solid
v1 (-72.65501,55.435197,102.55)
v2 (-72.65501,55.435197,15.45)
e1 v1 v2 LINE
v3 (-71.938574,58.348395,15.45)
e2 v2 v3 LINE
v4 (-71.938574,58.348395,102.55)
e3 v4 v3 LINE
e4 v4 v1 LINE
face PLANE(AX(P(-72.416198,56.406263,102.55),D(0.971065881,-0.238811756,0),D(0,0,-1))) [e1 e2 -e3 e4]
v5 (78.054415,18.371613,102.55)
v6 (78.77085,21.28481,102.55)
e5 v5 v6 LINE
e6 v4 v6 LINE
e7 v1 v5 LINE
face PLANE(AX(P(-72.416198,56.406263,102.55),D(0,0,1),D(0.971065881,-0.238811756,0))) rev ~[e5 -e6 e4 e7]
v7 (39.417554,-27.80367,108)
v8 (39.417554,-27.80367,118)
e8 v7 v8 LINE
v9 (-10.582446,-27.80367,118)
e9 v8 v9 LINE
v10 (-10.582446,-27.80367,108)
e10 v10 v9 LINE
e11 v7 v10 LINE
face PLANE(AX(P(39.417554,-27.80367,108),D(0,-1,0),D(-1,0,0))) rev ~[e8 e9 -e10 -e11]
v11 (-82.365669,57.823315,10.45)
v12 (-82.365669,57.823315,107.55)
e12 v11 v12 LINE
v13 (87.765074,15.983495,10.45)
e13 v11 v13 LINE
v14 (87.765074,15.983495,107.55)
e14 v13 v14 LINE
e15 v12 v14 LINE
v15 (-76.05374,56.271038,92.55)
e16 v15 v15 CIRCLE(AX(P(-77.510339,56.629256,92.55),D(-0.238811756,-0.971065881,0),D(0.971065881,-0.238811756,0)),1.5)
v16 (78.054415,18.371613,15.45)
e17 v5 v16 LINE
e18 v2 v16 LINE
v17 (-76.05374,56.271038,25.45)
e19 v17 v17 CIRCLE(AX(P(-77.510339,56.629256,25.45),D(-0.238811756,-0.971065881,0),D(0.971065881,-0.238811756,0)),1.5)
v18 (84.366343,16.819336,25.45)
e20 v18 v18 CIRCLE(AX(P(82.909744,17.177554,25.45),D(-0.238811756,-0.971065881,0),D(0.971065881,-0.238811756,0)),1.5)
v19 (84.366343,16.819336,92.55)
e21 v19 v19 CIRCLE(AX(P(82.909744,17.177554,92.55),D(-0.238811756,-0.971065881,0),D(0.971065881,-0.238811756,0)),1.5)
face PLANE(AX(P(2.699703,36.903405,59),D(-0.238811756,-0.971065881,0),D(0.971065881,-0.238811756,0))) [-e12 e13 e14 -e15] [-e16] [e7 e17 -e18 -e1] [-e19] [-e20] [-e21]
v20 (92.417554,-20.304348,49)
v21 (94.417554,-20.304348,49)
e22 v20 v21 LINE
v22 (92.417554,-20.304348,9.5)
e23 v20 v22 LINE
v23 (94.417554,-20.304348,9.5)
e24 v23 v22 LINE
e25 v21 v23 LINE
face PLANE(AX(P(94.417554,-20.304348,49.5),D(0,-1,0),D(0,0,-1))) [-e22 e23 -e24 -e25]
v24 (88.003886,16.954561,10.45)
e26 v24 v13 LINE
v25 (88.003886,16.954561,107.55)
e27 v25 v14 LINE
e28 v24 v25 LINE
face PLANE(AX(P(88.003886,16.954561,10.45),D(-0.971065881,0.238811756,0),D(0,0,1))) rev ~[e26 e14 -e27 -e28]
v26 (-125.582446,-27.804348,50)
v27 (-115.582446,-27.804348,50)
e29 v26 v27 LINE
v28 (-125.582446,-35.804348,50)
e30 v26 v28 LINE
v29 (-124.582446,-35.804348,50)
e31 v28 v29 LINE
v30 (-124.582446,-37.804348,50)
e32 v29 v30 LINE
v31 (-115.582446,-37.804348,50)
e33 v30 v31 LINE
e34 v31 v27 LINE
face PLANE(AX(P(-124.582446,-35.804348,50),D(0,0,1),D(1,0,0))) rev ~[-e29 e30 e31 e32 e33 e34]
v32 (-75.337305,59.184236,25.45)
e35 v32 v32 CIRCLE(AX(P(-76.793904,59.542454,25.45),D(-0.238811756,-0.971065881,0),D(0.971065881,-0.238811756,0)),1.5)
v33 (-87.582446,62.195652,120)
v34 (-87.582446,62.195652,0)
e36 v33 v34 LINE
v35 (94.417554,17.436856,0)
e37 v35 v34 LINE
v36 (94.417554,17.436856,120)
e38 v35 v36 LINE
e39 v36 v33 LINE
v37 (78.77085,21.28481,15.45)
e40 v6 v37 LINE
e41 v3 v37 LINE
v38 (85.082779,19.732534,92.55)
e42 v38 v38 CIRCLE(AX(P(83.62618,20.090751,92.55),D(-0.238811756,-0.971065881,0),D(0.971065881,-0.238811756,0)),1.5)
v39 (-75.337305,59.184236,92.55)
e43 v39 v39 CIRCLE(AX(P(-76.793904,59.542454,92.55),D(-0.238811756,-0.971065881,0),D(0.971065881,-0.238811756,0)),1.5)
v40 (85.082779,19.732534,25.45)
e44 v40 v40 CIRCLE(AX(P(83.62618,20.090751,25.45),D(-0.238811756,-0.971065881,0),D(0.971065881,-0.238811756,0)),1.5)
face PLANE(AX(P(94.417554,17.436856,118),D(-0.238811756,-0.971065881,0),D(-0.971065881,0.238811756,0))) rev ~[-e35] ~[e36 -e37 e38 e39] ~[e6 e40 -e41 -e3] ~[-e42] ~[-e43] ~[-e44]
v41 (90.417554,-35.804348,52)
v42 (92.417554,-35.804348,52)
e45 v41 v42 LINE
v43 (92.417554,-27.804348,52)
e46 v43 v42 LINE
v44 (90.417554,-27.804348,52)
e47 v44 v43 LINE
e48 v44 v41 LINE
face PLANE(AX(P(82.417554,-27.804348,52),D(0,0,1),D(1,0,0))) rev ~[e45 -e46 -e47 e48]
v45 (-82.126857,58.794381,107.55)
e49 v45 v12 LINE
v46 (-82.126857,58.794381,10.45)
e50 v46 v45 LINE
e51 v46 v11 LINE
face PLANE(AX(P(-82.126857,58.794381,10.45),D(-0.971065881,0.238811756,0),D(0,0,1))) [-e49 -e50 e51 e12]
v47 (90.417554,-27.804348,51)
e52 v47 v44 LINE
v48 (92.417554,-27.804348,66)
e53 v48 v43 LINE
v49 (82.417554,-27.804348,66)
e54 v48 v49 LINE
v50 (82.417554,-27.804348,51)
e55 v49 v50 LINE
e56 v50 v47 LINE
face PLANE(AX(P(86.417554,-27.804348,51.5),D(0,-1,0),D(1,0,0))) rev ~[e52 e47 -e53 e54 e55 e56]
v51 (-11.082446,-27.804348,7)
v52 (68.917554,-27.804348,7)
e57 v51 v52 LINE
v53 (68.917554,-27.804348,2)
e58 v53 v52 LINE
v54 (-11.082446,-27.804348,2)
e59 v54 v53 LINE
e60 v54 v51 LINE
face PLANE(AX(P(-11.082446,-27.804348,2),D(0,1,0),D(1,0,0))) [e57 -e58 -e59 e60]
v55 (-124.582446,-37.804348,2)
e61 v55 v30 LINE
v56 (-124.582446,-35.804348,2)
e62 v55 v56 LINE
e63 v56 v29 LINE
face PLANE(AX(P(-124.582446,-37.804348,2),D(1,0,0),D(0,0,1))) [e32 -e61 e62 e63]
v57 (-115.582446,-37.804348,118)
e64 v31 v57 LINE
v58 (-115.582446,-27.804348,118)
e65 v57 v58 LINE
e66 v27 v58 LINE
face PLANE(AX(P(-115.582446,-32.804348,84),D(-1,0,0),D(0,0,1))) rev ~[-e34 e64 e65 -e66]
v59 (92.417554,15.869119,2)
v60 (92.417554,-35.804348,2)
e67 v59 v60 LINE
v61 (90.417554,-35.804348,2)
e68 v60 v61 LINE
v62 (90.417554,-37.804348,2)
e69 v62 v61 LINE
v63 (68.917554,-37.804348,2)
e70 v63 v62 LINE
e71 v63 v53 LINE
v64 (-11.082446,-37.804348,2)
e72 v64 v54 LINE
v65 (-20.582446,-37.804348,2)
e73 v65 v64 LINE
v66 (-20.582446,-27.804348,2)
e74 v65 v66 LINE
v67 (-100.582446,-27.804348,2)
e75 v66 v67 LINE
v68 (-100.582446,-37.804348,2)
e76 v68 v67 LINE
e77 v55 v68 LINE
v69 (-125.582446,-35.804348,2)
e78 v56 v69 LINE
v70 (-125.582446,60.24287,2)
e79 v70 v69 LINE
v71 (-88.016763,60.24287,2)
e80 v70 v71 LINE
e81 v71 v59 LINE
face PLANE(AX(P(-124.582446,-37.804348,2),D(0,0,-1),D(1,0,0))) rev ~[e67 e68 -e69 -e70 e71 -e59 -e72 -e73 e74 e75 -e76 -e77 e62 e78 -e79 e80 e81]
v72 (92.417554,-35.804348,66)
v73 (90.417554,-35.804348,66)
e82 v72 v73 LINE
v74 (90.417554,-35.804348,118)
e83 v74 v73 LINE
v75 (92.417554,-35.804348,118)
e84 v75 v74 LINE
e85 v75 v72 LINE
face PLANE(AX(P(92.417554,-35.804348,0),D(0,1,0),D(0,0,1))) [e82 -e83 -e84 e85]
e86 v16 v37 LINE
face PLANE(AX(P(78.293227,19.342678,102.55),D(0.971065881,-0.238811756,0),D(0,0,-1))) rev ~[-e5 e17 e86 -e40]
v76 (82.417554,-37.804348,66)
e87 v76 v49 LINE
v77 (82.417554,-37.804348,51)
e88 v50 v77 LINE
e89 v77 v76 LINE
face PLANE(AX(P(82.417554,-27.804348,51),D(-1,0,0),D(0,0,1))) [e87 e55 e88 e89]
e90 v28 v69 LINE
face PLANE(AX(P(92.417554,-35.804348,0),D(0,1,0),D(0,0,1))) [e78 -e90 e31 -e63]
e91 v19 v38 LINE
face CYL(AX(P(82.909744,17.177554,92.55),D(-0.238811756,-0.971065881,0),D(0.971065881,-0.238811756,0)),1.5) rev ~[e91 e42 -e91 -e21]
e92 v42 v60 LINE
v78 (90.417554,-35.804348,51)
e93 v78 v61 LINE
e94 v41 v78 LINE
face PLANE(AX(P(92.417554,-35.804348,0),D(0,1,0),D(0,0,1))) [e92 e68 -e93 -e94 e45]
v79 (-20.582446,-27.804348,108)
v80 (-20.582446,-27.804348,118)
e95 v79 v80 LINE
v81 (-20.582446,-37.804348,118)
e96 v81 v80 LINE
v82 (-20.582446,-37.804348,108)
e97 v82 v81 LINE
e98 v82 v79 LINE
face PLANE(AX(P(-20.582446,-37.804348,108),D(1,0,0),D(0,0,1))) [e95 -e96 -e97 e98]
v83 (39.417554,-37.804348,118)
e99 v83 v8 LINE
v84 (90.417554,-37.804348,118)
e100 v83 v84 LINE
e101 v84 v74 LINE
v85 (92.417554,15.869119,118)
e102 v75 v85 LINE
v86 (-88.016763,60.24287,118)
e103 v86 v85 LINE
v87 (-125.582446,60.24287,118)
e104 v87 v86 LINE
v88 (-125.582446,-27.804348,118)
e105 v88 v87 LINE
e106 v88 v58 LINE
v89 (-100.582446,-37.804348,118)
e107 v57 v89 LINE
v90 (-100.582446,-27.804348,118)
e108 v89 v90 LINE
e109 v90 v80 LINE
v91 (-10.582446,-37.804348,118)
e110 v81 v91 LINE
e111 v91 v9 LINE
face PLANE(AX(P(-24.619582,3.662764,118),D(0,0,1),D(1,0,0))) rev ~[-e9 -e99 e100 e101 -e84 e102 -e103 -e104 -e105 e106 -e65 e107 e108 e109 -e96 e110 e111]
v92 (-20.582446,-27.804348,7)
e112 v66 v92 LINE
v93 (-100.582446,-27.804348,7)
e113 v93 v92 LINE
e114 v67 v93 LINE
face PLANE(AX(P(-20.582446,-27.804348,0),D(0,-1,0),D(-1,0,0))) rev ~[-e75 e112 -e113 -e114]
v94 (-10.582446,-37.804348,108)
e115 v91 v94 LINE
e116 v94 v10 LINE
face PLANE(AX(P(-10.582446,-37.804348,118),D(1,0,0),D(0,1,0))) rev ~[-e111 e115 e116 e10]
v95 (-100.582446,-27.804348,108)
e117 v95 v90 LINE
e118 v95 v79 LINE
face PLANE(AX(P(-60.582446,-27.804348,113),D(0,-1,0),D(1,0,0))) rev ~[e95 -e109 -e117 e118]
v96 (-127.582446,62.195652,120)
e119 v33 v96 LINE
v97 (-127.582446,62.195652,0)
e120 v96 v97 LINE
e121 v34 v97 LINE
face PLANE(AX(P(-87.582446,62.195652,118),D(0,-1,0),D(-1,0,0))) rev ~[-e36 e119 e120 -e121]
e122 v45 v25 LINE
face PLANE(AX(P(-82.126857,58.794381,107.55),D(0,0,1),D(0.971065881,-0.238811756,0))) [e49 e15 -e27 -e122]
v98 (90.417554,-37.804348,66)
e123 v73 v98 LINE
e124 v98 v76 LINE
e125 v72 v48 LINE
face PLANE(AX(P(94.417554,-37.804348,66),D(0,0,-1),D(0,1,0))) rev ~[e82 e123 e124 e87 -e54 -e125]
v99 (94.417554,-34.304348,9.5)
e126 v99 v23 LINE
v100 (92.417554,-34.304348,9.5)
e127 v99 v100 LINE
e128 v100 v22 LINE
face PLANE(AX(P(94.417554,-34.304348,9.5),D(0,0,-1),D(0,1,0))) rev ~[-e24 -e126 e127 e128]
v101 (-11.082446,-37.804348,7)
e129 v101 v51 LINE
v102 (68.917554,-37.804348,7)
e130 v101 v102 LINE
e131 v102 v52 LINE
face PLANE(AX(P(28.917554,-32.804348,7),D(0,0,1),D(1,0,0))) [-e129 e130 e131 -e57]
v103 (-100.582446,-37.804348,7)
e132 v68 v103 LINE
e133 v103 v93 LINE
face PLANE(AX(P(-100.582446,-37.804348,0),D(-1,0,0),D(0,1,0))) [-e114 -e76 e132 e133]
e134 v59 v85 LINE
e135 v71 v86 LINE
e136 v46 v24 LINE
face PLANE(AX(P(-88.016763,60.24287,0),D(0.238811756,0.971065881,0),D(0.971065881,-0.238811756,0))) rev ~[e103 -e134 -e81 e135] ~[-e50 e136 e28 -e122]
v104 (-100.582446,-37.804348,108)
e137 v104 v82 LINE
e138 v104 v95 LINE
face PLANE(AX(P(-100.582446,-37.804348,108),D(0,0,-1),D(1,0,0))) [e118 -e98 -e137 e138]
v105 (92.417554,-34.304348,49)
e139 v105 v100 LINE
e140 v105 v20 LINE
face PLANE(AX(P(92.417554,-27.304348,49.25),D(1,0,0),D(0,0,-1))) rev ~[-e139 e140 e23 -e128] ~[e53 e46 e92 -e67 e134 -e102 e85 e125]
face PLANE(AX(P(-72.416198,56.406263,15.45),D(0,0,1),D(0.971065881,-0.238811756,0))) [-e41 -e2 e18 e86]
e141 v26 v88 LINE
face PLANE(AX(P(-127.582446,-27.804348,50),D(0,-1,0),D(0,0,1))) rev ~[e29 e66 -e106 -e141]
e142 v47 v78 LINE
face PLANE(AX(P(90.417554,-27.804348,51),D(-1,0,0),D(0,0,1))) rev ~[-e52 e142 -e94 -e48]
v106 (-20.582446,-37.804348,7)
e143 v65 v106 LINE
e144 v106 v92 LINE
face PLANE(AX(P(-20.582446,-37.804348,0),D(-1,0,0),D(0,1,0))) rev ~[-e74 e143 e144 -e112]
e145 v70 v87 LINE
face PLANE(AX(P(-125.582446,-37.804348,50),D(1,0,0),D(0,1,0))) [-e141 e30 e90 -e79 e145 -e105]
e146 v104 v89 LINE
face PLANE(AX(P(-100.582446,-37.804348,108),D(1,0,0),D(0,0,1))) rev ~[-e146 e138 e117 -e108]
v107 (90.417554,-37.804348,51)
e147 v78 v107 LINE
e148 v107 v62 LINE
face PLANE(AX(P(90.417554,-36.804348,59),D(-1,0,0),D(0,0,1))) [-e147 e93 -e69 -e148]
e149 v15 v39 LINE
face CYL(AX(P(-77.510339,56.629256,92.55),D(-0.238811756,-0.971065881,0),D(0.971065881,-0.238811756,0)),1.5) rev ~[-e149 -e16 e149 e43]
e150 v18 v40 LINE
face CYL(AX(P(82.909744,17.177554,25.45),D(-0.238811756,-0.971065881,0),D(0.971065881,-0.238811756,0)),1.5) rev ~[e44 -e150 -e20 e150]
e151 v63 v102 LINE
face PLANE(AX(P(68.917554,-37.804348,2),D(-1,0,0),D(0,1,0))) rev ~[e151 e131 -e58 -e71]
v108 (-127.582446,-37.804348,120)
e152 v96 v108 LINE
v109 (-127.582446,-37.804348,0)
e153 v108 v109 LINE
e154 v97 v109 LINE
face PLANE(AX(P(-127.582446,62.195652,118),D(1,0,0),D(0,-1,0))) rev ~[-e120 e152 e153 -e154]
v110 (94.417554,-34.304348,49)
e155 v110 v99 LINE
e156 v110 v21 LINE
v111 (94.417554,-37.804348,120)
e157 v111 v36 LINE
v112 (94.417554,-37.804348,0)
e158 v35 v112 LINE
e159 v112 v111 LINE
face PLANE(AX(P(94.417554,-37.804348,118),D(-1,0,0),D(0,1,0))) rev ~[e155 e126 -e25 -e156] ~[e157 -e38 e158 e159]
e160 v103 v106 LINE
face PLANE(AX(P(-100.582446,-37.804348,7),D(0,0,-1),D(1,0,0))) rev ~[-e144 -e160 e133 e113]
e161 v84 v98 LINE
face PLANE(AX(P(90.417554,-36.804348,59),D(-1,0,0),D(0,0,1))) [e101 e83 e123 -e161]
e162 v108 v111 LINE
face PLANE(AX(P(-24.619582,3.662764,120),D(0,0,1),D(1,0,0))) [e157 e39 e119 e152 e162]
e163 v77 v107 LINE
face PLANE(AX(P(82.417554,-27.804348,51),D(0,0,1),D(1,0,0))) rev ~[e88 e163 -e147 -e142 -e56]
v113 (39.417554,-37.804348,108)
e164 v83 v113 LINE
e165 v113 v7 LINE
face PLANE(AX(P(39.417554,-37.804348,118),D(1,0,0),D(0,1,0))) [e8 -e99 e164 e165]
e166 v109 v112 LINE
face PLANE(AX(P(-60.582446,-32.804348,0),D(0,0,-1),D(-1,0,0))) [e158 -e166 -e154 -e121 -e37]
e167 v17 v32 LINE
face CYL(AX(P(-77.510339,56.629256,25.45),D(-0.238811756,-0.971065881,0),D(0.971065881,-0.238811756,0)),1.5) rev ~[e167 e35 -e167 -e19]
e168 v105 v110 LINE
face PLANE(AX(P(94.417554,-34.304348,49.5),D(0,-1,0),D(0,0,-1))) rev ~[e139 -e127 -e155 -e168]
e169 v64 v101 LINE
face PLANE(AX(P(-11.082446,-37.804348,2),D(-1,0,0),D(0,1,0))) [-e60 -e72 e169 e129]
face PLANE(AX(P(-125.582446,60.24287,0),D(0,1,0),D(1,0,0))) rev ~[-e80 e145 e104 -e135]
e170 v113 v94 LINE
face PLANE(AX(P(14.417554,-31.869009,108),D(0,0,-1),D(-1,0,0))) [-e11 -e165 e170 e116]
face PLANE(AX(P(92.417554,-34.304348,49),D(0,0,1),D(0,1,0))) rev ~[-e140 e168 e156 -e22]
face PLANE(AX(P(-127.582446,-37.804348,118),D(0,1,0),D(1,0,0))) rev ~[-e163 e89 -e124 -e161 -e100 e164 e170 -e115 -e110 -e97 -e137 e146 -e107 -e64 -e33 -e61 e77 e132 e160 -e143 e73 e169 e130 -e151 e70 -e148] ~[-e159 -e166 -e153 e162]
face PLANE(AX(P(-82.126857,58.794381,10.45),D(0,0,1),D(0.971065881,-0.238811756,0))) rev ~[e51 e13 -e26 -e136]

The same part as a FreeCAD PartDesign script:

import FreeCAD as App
import Part
import Sketcher

V = App.Vector
Q = App.Units.Quantity


def add_polygon(sketch, points):
    """Adds a closed chain of lines whose ends are joined by coincident constraints."""
    first, n = sketch.GeometryCount, len(points)
    for a, b in zip(points, points[1:] + points[:1]):
        sketch.addGeometry(Part.LineSegment(App.Vector(*a, 0), App.Vector(*b, 0)), False)
    for i in range(n):
        sketch.addConstraint(Sketcher.Constraint("Coincident", first + i, 2, first + (i + 1) % n, 1))

doc = App.newDocument("Part")
body = doc.addObject("PartDesign::Body", "Body")

# Sketch on XY plane
sketch1 = body.newObject("Sketcher::SketchObject", "Sketch")
sketch1.AttachmentSupport = (doc.getObject("XY_Plane"), [""])
sketch1.MapMode = "FlatFace"
add_polygon(sketch1, [(94.417554, -32.563144), (94.417554, 17.436856), (-87.582446, 62.195652), (-127.582446, 62.195652), (-127.582446, -37.804348), (-125.582446, -37.75713), (-125.582446, 60.24287), (-88.016763, 60.24287), (92.417554, 15.869119), (92.417554, -32.610362)])  # lines 0-9
sketch1.addConstraint([
    Sketcher.Constraint("Vertical", 0),
    Sketcher.Constraint("Horizontal", 2),
    Sketcher.Constraint("Vertical", 3),
    Sketcher.Constraint("Vertical", 5),
    Sketcher.Constraint("Horizontal", 6),
    Sketcher.Constraint("Vertical", 8),
    Sketcher.Constraint("Parallel", 1, 7),
    Sketcher.Constraint("Parallel", 4, 9),
    Sketcher.Constraint("Equal", 4, 9),
    Sketcher.Constraint("DistanceX", 2, 2, 2, 1, Q("40 mm")),
    Sketcher.Constraint("DistanceY", 0, 1, 0, 2, Q("50 mm")),
    Sketcher.Constraint("DistanceY", 3, 2, 3, 1, Q("100 mm")),
    Sketcher.Constraint("DistanceY", 5, 1, 5, 2, Q("98 mm")),
    Sketcher.Constraint("DistanceX", 1, 2, 0, 2, Q("182 mm")),
    Sketcher.Constraint("DistanceX", 3, 2, 4, 2, Q("2 mm")),
    Sketcher.Constraint("DistanceY", 8, 2, 8, 1, Q("48.47948 mm")),
    Sketcher.Constraint("DistanceX", 6, 1, 6, 2, Q("37.565683 mm")),
    Sketcher.Constraint("DistanceY", 4, 2, -1, 1, Q("37.75713 mm")),
    Sketcher.Constraint("DistanceY", -1, 1, 7, 2, Q("15.869119 mm")),
    Sketcher.Constraint("DistanceX", -1, 1, 0, 2, Q("94.417554 mm")),
])
pad1 = body.newObject("PartDesign::Pad", "Pad")
pad1.Profile = sketch1
pad1.Length = 118

# Sketch on YZ plane
sketch2 = body.newObject("Sketcher::SketchObject", "Sketch001")
sketch2.AttachmentSupport = (doc.getObject("YZ_Plane"), [""])
sketch2.MapMode = "FlatFace"
sketch2.AttachmentOffset = App.Placement(V(0, 0, -127.582446), App.Rotation())
add_polygon(sketch2, [(-27.804348, 50), (-37.804348, 50), (-37.804348, 118), (-27.804348, 118)])  # lines 0-3
sketch2.addConstraint([
    Sketcher.Constraint("Horizontal", 0),
    Sketcher.Constraint("Vertical", 1),
    Sketcher.Constraint("Horizontal", 2),
    Sketcher.Constraint("Vertical", 3),
    Sketcher.Constraint("DistanceX", 0, 2, 0, 1, Q("10 mm")),
    Sketcher.Constraint("DistanceY", 1, 1, 1, 2, Q("68 mm")),
    Sketcher.Constraint("DistanceY", -1, 1, 0, 2, Q("50 mm")),
    Sketcher.Constraint("DistanceX", 0, 2, -1, 1, Q("37.804348 mm")),
])
pad2 = body.newObject("PartDesign::Pad", "Pad001")
pad2.Profile = sketch2
pad2.Length = 12

# Sketch on XY plane
sketch3 = body.newObject("Sketcher::SketchObject", "Sketch002")
sketch3.AttachmentSupport = (doc.getObject("XY_Plane"), [""])
sketch3.MapMode = "FlatFace"
sketch3.AttachmentOffset = App.Placement(V(0, 0, 118), App.Rotation())
add_polygon(sketch3, [(92.417554, -32.563144), (92.417554, -37.804348), (94.417554, -37.804348), (94.417554, -32.563144)])  # lines 0-3
sketch3.addConstraint([
    Sketcher.Constraint("Vertical", 0),
    Sketcher.Constraint("Horizontal", 1),
    Sketcher.Constraint("Vertical", 2),
    Sketcher.Constraint("Horizontal", 3),
    Sketcher.Constraint("DistanceX", 1, 1, 1, 2, Q("2 mm")),
    Sketcher.Constraint("DistanceY", 0, 2, 0, 1, Q("5.241204 mm")),
    Sketcher.Constraint("DistanceX", -1, 1, 0, 2, Q("92.417554 mm")),
    Sketcher.Constraint("DistanceY", 0, 2, -1, 1, Q("37.804348 mm")),
])
pad3 = body.newObject("PartDesign::Pad", "Pad002")
pad3.Profile = sketch3
pad3.Length = 118
pad3.Reversed = True

# Sketch on YZ plane
sketch4 = body.newObject("Sketcher::SketchObject", "Sketch003")
sketch4.AttachmentSupport = (doc.getObject("YZ_Plane"), [""])
sketch4.MapMode = "FlatFace"
sketch4.AttachmentOffset = App.Placement(V(0, 0, 94.417554), App.Rotation())
add_polygon(sketch4, [(-20.304348, 49.5), (-34.304348, 49.5), (-34.304348, 9.5), (-20.304348, 9.5)])  # lines 0-3
sketch4.addConstraint([
    Sketcher.Constraint("Horizontal", 0),
    Sketcher.Constraint("Vertical", 1),
    Sketcher.Constraint("Horizontal", 2),
    Sketcher.Constraint("Vertical", 3),
    Sketcher.Constraint("DistanceX", 0, 2, 0, 1, Q("14 mm")),
    Sketcher.Constraint("DistanceY", 1, 2, 1, 1, Q("40 mm")),
    Sketcher.Constraint("DistanceY", -1, 1, 0, 2, Q("49.5 mm")),
    Sketcher.Constraint("DistanceX", 0, 2, -1, 1, Q("34.304348 mm")),
])
pocket1 = body.newObject("PartDesign::Pocket", "Pocket")
pocket1.Profile = sketch4
pocket1.Length = 12

# Sketch on YZ plane
sketch5 = body.newObject("Sketcher::SketchObject", "Sketch004")
sketch5.AttachmentSupport = (doc.getObject("YZ_Plane"), [""])
sketch5.MapMode = "FlatFace"
sketch5.AttachmentOffset = App.Placement(V(0, 0, 92.417554), App.Rotation())
add_polygon(sketch5, [(-20.304348, 49.5), (-34.304348, 49.5), (-34.304348, 49), (-20.304348, 49)])  # lines 0-3
sketch5.addConstraint([
    Sketcher.Constraint("Horizontal", 0),
    Sketcher.Constraint("Vertical", 1),
    Sketcher.Constraint("Horizontal", 2),
    Sketcher.Constraint("Vertical", 3),
    Sketcher.Constraint("DistanceX", 0, 2, 0, 1, Q("14 mm")),
    Sketcher.Constraint("DistanceY", 1, 2, 1, 1, Q("0.5 mm")),
    Sketcher.Constraint("DistanceY", -1, 1, 1, 2, Q("49 mm")),
    Sketcher.Constraint("DistanceX", 0, 2, -1, 1, Q("34.304348 mm")),
])
pad4 = body.newObject("PartDesign::Pad", "Pad003")
pad4.Profile = sketch5
pad4.Length = 2

# Sketch on YZ plane
sketch6 = body.newObject("Sketcher::SketchObject", "Sketch005")
sketch6.AttachmentSupport = (doc.getObject("YZ_Plane"), [""])
sketch6.MapMode = "FlatFace"
sketch6.AttachmentOffset = App.Placement(V(0, 0, 92.417554), App.Rotation())
add_polygon(sketch6, [(-35.804348, 0), (-37.804348, 0), (-37.804348, 118), (-35.804348, 118)])  # lines 0-3
sketch6.addConstraint([
    Sketcher.Constraint("Horizontal", 0),
    Sketcher.Constraint("Vertical", 1),
    Sketcher.Constraint("Horizontal", 2),
    Sketcher.Constraint("Vertical", 3),
    Sketcher.Constraint("PointOnObject", 0, 2, -1),
    Sketcher.Constraint("DistanceX", 0, 2, 0, 1, Q("2 mm")),
    Sketcher.Constraint("DistanceY", 1, 1, 1, 2, Q("118 mm")),
    Sketcher.Constraint("DistanceX", 0, 2, -1, 1, Q("37.804348 mm")),
])
pad5 = body.newObject("PartDesign::Pad", "Pad004")
pad5.Profile = sketch6
pad5.Length = 2
pad5.Reversed = True

# Sketch on XY plane
sketch7 = body.newObject("Sketcher::SketchObject", "Sketch006")
sketch7.AttachmentSupport = (doc.getObject("XY_Plane"), [""])
sketch7.MapMode = "FlatFace"
sketch7.AttachmentOffset = App.Placement(V(0, 0, 50), App.Rotation())
add_polygon(sketch7, [(-125.582446, -37.154507), (-125.582446, -37.804348), (-127.582446, -37.804348), (-127.582446, -37.154507)])  # lines 0-3
sketch7.addConstraint([
    Sketcher.Constraint("Vertical", 0),
    Sketcher.Constraint("Horizontal", 1),
    Sketcher.Constraint("Vertical", 2),
    Sketcher.Constraint("Horizontal", 3),
    Sketcher.Constraint("DistanceX", 1, 2, 1, 1, Q("2 mm")),
    Sketcher.Constraint("DistanceY", 0, 2, 0, 1, Q("0.649841 mm")),
    Sketcher.Constraint("DistanceX", 0, 2, -1, 1, Q("125.582446 mm")),
    Sketcher.Constraint("DistanceY", 0, 2, -1, 1, Q("37.804348 mm")),
])
pad6 = body.newObject("PartDesign::Pad", "Pad005")
pad6.Profile = sketch7
pad6.Length = 50
pad6.Reversed = True

# Sketch on XY plane
sketch8 = body.newObject("Sketcher::SketchObject", "Sketch007")
sketch8.AttachmentSupport = (doc.getObject("XY_Plane"), [""])
sketch8.MapMode = "FlatFace"
add_polygon(sketch8, [(-87.582446, 62.195652), (94.417554, 17.436856), (94.417554, -37.804348), (-127.582446, -37.804348), (-127.582446, 62.195652)])  # lines 0-4
sketch8.addConstraint([
    Sketcher.Constraint("Vertical", 1),
    Sketcher.Constraint("Horizontal", 2),
    Sketcher.Constraint("Vertical", 3),
    Sketcher.Constraint("Horizontal", 4),
    Sketcher.Constraint("DistanceX", 2, 2, 2, 1, Q("222 mm")),
    Sketcher.Constraint("DistanceX", 4, 1, 4, 2, Q("40 mm")),
    Sketcher.Constraint("DistanceY", 3, 1, 3, 2, Q("100 mm")),
    Sketcher.Constraint("DistanceY", 1, 2, 1, 1, Q("55.241204 mm")),
    Sketcher.Constraint("DistanceX", -1, 1, 0, 2, Q("94.417554 mm")),
    Sketcher.Constraint("DistanceY", -1, 1, 0, 2, Q("17.436856 mm")),
])
pad7 = body.newObject("PartDesign::Pad", "Pad006")
pad7.Profile = sketch8
pad7.Length = 2

# Sketch on XY plane
sketch9 = body.newObject("Sketcher::SketchObject", "Sketch008")
sketch9.AttachmentSupport = (doc.getObject("XY_Plane"), [""])
sketch9.MapMode = "FlatFace"
sketch9.AttachmentOffset = App.Placement(V(0, 0, 2), App.Rotation())
add_polygon(sketch9, [(-127.582446, -35.804348), (-127.582446, -37.804348), (94.417554, -37.804348), (94.417554, -35.804348)])  # lines 0-3
sketch9.addConstraint([
    Sketcher.Constraint("Vertical", 0),
    Sketcher.Constraint("Horizontal", 1),
    Sketcher.Constraint("Vertical", 2),
    Sketcher.Constraint("Horizontal", 3),
    Sketcher.Constraint("DistanceX", 1, 1, 1, 2, Q("222 mm")),
    Sketcher.Constraint("DistanceY", 0, 2, 0, 1, Q("2 mm")),
    Sketcher.Constraint("DistanceX", 0, 2, -1, 1, Q("127.582446 mm")),
    Sketcher.Constraint("DistanceY", 0, 2, -1, 1, Q("37.804348 mm")),
])
pad8 = body.newObject("PartDesign::Pad", "Pad007")
pad8.Profile = sketch9
pad8.Length = 2

# Sketch on YZ plane
sketch10 = body.newObject("Sketcher::SketchObject", "Sketch009")
sketch10.AttachmentSupport = (doc.getObject("YZ_Plane"), [""])
sketch10.MapMode = "FlatFace"
sketch10.AttachmentOffset = App.Placement(V(0, 0, -127.582446), App.Rotation())
add_polygon(sketch10, [(-35.804348, 0), (-37.804348, 0), (-37.804348, 118), (-35.804348, 118)])  # lines 0-3
sketch10.addConstraint([
    Sketcher.Constraint("Horizontal", 0),
    Sketcher.Constraint("Vertical", 1),
    Sketcher.Constraint("Horizontal", 2),
    Sketcher.Constraint("Vertical", 3),
    Sketcher.Constraint("PointOnObject", 0, 2, -1),
    Sketcher.Constraint("DistanceX", 0, 2, 0, 1, Q("2 mm")),
    Sketcher.Constraint("DistanceY", 1, 1, 1, 2, Q("118 mm")),
    Sketcher.Constraint("DistanceX", 0, 2, -1, 1, Q("37.804348 mm")),
])
pad9 = body.newObject("PartDesign::Pad", "Pad008")
pad9.Profile = sketch10
pad9.Length = 4

# Sketch on XZ plane
sketch11 = body.newObject("Sketcher::SketchObject", "Sketch010")
sketch11.AttachmentSupport = (doc.getObject("XZ_Plane"), [""])
sketch11.MapMode = "FlatFace"
sketch11.AttachmentOffset = App.Placement(V(0, 0, 35.804348), App.Rotation())
add_polygon(sketch11, [(-124.582446, 4), (-124.582446, 50), (-123.582446, 50), (-123.582446, 4)])  # lines 0-3
sketch11.addConstraint([
    Sketcher.Constraint("Vertical", 0),
    Sketcher.Constraint("Horizontal", 1),
    Sketcher.Constraint("Vertical", 2),
    Sketcher.Constraint("Horizontal", 3),
    Sketcher.Constraint("DistanceX", 1, 1, 1, 2, Q("1 mm")),
    Sketcher.Constraint("DistanceY", 0, 1, 0, 2, Q("46 mm")),
    Sketcher.Constraint("DistanceY", -1, 1, 0, 2, Q("50 mm")),
    Sketcher.Constraint("DistanceX", 0, 2, -1, 1, Q("124.582446 mm")),
])
pocket2 = body.newObject("PartDesign::Pocket", "Pocket001")
pocket2.Profile = sketch11
pocket2.Length = 4
pocket2.Reversed = True

# Sketch on XZ plane
sketch12 = body.newObject("Sketcher::SketchObject", "Sketch011")
sketch12.AttachmentSupport = (doc.getObject("XZ_Plane"), [""])
sketch12.MapMode = "FlatFace"
sketch12.AttachmentOffset = App.Placement(V(0, 0, 37.804348), App.Rotation())
add_polygon(sketch12, [(-124.582446, 4), (-124.582446, 3), (90.417554, 3), (90.417554, 4)])  # lines 0-3
sketch12.addConstraint([
    Sketcher.Constraint("Vertical", 0),
    Sketcher.Constraint("Horizontal", 1),
    Sketcher.Constraint("Vertical", 2),
    Sketcher.Constraint("Horizontal", 3),
    Sketcher.Constraint("DistanceX", 1, 1, 1, 2, Q("215 mm")),
    Sketcher.Constraint("DistanceY", 0, 2, 0, 1, Q("1 mm")),
    Sketcher.Constraint("DistanceY", -1, 1, 0, 2, Q("3 mm")),
    Sketcher.Constraint("DistanceX", 0, 2, -1, 1, Q("124.582446 mm")),
])
pocket3 = body.newObject("PartDesign::Pocket", "Pocket002")
pocket3.Profile = sketch12
pocket3.Length = 4

# Sketch on XZ plane
sketch13 = body.newObject("Sketcher::SketchObject", "Sketch012")
sketch13.AttachmentSupport = (doc.getObject("XZ_Plane"), [""])
sketch13.MapMode = "FlatFace"
sketch13.AttachmentOffset = App.Placement(V(0, 0, 37.804348), App.Rotation())
add_polygon(sketch13, [(-124.582446, 3), (-124.582446, 2), (90.417554, 2), (90.417554, 3)])  # lines 0-3
sketch13.addConstraint([
    Sketcher.Constraint("Vertical", 0),
    Sketcher.Constraint("Horizontal", 1),
    Sketcher.Constraint("Vertical", 2),
    Sketcher.Constraint("Horizontal", 3),
    Sketcher.Constraint("DistanceX", 1, 1, 1, 2, Q("215 mm")),
    Sketcher.Constraint("DistanceY", 0, 2, 0, 1, Q("1 mm")),
    Sketcher.Constraint("DistanceY", -1, 1, 0, 2, Q("2 mm")),
    Sketcher.Constraint("DistanceX", 0, 2, -1, 1, Q("124.582446 mm")),
])
pocket4 = body.newObject("PartDesign::Pocket", "Pocket003")
pocket4.Profile = sketch13
pocket4.Length = 4

# Sketch on an angled plane
sketch14 = body.newObject("Sketcher::SketchObject", "Sketch013")
sketch14.Placement = App.Placement(V(9.428374, 38.338029, 0), App.Rotation(V(0.971065881, -0.238811756, 0), V(0, 0, -1), V(0.238811756, 0.971065881, 0), "ZXY"))
add_polygon(sketch14, [(-83.791378, -15.45), (-83.791378, -102.55), (71.408622, -102.55), (71.408622, -15.45)])  # lines 0-3
sketch14.addConstraint([
    Sketcher.Constraint("Vertical", 0),
    Sketcher.Constraint("Horizontal", 1),
    Sketcher.Constraint("Vertical", 2),
    Sketcher.Constraint("Horizontal", 3),
    Sketcher.Constraint("DistanceX", 1, 1, 1, 2, Q("155.2 mm")),
    Sketcher.Constraint("DistanceY", 0, 2, 0, 1, Q("87.1 mm")),
    Sketcher.Constraint("DistanceY", 0, 2, -1, 1, Q("102.55 mm")),
    Sketcher.Constraint("DistanceX", 0, 2, -1, 1, Q("83.791378 mm")),
])
pocket5 = body.newObject("PartDesign::Pocket", "Pocket004")
pocket5.Profile = sketch14
pocket5.Length = 4

# Sketch on an angled plane
sketch15 = body.newObject("Sketcher::SketchObject", "Sketch014")
sketch15.Placement = App.Placement(V(8.95075, 36.395897, 0), App.Rotation(V(0.971065881, -0.238811756, 0), V(0, 0, 1), V(-0.238811756, -0.971065881, 0), "ZXY"))
add_polygon(sketch15, [(-93.791378, 107.55), (-93.791378, 10.45), (81.408622, 10.45), (81.408622, 107.55)])  # lines 0-3
sketch15.addConstraint([
    Sketcher.Constraint("Vertical", 0),
    Sketcher.Constraint("Horizontal", 1),
    Sketcher.Constraint("Vertical", 2),
    Sketcher.Constraint("Horizontal", 3),
    Sketcher.Constraint("DistanceX", 1, 1, 1, 2, Q("175.2 mm")),
    Sketcher.Constraint("DistanceY", 0, 2, 0, 1, Q("97.1 mm")),
    Sketcher.Constraint("DistanceY", -1, 1, 0, 2, Q("10.45 mm")),
    Sketcher.Constraint("DistanceX", 0, 2, -1, 1, Q("93.791378 mm")),
])
pad10 = body.newObject("PartDesign::Pad", "Pad009")
pad10.Profile = sketch15
pad10.Length = 1

# Sketch on an angled plane
sketch16 = body.newObject("Sketcher::SketchObject", "Sketch015")
sketch16.Placement = App.Placement(V(8.95075, 36.395897, 0), App.Rotation(V(0.971065881, -0.238811756, 0), V(0, 0, -1), V(0.238811756, 0.971065881, 0), "ZXY"))
add_polygon(sketch16, [(-83.791378, -15.45), (-83.791378, -102.55), (71.408622, -102.55), (71.408622, -15.45)])  # lines 0-3
sketch16.addConstraint([
    Sketcher.Constraint("Vertical", 0),
    Sketcher.Constraint("Horizontal", 1),
    Sketcher.Constraint("Vertical", 2),
    Sketcher.Constraint("Horizontal", 3),
    Sketcher.Constraint("DistanceX", 1, 1, 1, 2, Q("155.2 mm")),
    Sketcher.Constraint("DistanceY", 0, 2, 0, 1, Q("87.1 mm")),
    Sketcher.Constraint("DistanceY", 0, 2, -1, 1, Q("102.55 mm")),
    Sketcher.Constraint("DistanceX", 0, 2, -1, 1, Q("83.791378 mm")),
])
pocket6 = body.newObject("PartDesign::Pocket", "Pocket005")
pocket6.Profile = sketch16
pocket6.Length = 1

# Sketch on an angled plane
sketch17 = body.newObject("Sketcher::SketchObject", "Sketch016")
sketch17.Placement = App.Placement(V(8.711938, 35.424831, 0), App.Rotation(V(0.971065881, -0.238811756, 0), V(0, 0, 1), V(-0.238811756, -0.971065881, 0), "ZXY"))
sketch17.addGeometry([
    Part.Circle(V(-88.791378, 92.55, 0), V(0, 0, 1), 1.5),
    Part.Circle(V(-88.791378, 25.45, 0), V(0, 0, 1), 1.5),
    Part.Circle(V(76.408622, 25.45, 0), V(0, 0, 1), 1.5),
    Part.Circle(V(76.408622, 92.55, 0), V(0, 0, 1), 1.5),
], False)
sketch17.addConstraint([
    Sketcher.Constraint("Equal", 0, 1),
    Sketcher.Constraint("Equal", 1, 2),
    Sketcher.Constraint("Equal", 2, 3),
    Sketcher.Constraint("Horizontal", 1, 3, 2, 3),
    Sketcher.Constraint("Horizontal", 0, 3, 3, 3),
    Sketcher.Constraint("Vertical", 0, 3, 1, 3),
    Sketcher.Constraint("Vertical", 2, 3, 3, 3),
    Sketcher.Constraint("Diameter", 0, Q("3 mm")),
    Sketcher.Constraint("DistanceY", 1, 3, 0, 3, Q("67.1 mm")),
    Sketcher.Constraint("DistanceX", 1, 3, 2, 3, Q("165.2 mm")),
    Sketcher.Constraint("DistanceY", -1, 1, 0, 3, Q("92.55 mm")),
    Sketcher.Constraint("DistanceX", 0, 3, -1, 1, Q("88.791378 mm")),
])
pocket7 = body.newObject("PartDesign::Pocket", "Pocket006")
pocket7.Profile = sketch17
pocket7.Type = "ThroughAll"

# Sketch on XY plane
sketch18 = body.newObject("Sketcher::SketchObject", "Sketch017")
sketch18.AttachmentSupport = (doc.getObject("XY_Plane"), [""])
sketch18.MapMode = "FlatFace"
add_polygon(sketch18, [(-20.582446, -27.804348), (-20.582446, -37.804348), (-100.582446, -37.804348), (-100.582446, -27.804348)])  # lines 0-3
sketch18.addConstraint([
    Sketcher.Constraint("Vertical", 0),
    Sketcher.Constraint("Horizontal", 1),
    Sketcher.Constraint("Vertical", 2),
    Sketcher.Constraint("Horizontal", 3),
    Sketcher.Constraint("DistanceX", 1, 2, 1, 1, Q("80 mm")),
    Sketcher.Constraint("DistanceY", 0, 2, 0, 1, Q("10 mm")),
    Sketcher.Constraint("DistanceX", 0, 2, -1, 1, Q("20.582446 mm")),
    Sketcher.Constraint("DistanceY", 0, 2, -1, 1, Q("37.804348 mm")),
])
pad11 = body.newObject("PartDesign::Pad", "Pad010")
pad11.Profile = sketch18
pad11.Length = 12

# Sketch on XZ plane
sketch19 = body.newObject("Sketcher::SketchObject", "Sketch018")
sketch19.AttachmentSupport = (doc.getObject("XZ_Plane"), [""])
sketch19.MapMode = "FlatFace"
sketch19.AttachmentOffset = App.Placement(V(0, 0, 37.804348), App.Rotation())
add_polygon(sketch19, [(-100.582446, 12), (-100.582446, 7), (-20.582446, 7), (-20.582446, 12)])  # lines 0-3
sketch19.addConstraint([
    Sketcher.Constraint("Vertical", 0),
    Sketcher.Constraint("Horizontal", 1),
    Sketcher.Constraint("Vertical", 2),
    Sketcher.Constraint("Horizontal", 3),
    Sketcher.Constraint("DistanceX", 1, 1, 1, 2, Q("80 mm")),
    Sketcher.Constraint("DistanceY", 0, 2, 0, 1, Q("5 mm")),
    Sketcher.Constraint("DistanceY", -1, 1, 0, 2, Q("7 mm")),
    Sketcher.Constraint("DistanceX", 0, 2, -1, 1, Q("100.582446 mm")),
])
pocket8 = body.newObject("PartDesign::Pocket", "Pocket007")
pocket8.Profile = sketch19
pocket8.Length = 12

# Sketch on YZ plane
sketch20 = body.newObject("Sketcher::SketchObject", "Sketch019")
sketch20.AttachmentSupport = (doc.getObject("YZ_Plane"), [""])
sketch20.MapMode = "FlatFace"
sketch20.AttachmentOffset = App.Placement(V(0, 0, 94.417554), App.Rotation())
add_polygon(sketch20, [(-27.804348, 66), (-37.804348, 66), (-37.804348, 56), (-27.804348, 56)])  # lines 0-3
sketch20.addConstraint([
    Sketcher.Constraint("Horizontal", 0),
    Sketcher.Constraint("Vertical", 1),
    Sketcher.Constraint("Horizontal", 2),
    Sketcher.Constraint("Vertical", 3),
    Sketcher.Constraint("Equal", 2, 1),
    Sketcher.Constraint("DistanceX", 0, 2, 0, 1, Q("10 mm")),
    Sketcher.Constraint("DistanceY", -1, 1, 0, 2, Q("66 mm")),
    Sketcher.Constraint("DistanceX", 0, 2, -1, 1, Q("37.804348 mm")),
])
pad12 = body.newObject("PartDesign::Pad", "Pad011")
pad12.Profile = sketch20
pad12.Length = 12
pad12.Reversed = True

# Sketch on XZ plane
sketch21 = body.newObject("Sketcher::SketchObject", "Sketch020")
sketch21.AttachmentSupport = (doc.getObject("XZ_Plane"), [""])
sketch21.MapMode = "FlatFace"
sketch21.AttachmentOffset = App.Placement(V(0, 0, 27.804348), App.Rotation())
add_polygon(sketch21, [(82.417554, 56), (82.417554, 52), (94.417554, 52), (94.417554, 56)])  # lines 0-3
sketch21.addConstraint([
    Sketcher.Constraint("Vertical", 0),
    Sketcher.Constraint("Horizontal", 1),
    Sketcher.Constraint("Vertical", 2),
    Sketcher.Constraint("Horizontal", 3),
    Sketcher.Constraint("DistanceX", 1, 1, 1, 2, Q("12 mm")),
    Sketcher.Constraint("DistanceY", 0, 2, 0, 1, Q("4 mm")),
    Sketcher.Constraint("DistanceY", -1, 1, 0, 2, Q("52 mm")),
    Sketcher.Constraint("DistanceX", -1, 1, 0, 2, Q("82.417554 mm")),
])
pad13 = body.newObject("PartDesign::Pad", "Pad012")
pad13.Profile = sketch21
pad13.Length = 10

# Sketch on XZ plane
sketch22 = body.newObject("Sketcher::SketchObject", "Sketch021")
sketch22.AttachmentSupport = (doc.getObject("XZ_Plane"), [""])
sketch22.MapMode = "FlatFace"
sketch22.AttachmentOffset = App.Placement(V(0, 0, 27.804348), App.Rotation())
add_polygon(sketch22, [(82.417554, 52), (82.417554, 51), (90.417554, 51), (90.417554, 52)])  # lines 0-3
sketch22.addConstraint([
    Sketcher.Constraint("Vertical", 0),
    Sketcher.Constraint("Horizontal", 1),
    Sketcher.Constraint("Vertical", 2),
    Sketcher.Constraint("Horizontal", 3),
    Sketcher.Constraint("DistanceX", 1, 1, 1, 2, Q("8 mm")),
    Sketcher.Constraint("DistanceY", 0, 2, 0, 1, Q("1 mm")),
    Sketcher.Constraint("DistanceY", -1, 1, 0, 2, Q("51 mm")),
    Sketcher.Constraint("DistanceX", -1, 1, 0, 2, Q("82.417554 mm")),
])
pad14 = body.newObject("PartDesign::Pad", "Pad013")
pad14.Profile = sketch22
pad14.Length = 10

# Sketch on XY plane
sketch23 = body.newObject("Sketcher::SketchObject", "Sketch022")
sketch23.AttachmentSupport = (doc.getObject("XY_Plane"), [""])
sketch23.MapMode = "FlatFace"
sketch23.AttachmentOffset = App.Placement(V(0, 0, 2), App.Rotation())
add_polygon(sketch23, [(-11.082446, -27.804348), (-11.082446, -37.804348), (68.917554, -37.804348), (68.917554, -27.804348)])  # lines 0-3
sketch23.addConstraint([
    Sketcher.Constraint("Vertical", 0),
    Sketcher.Constraint("Horizontal", 1),
    Sketcher.Constraint("Vertical", 2),
    Sketcher.Constraint("Horizontal", 3),
    Sketcher.Constraint("DistanceX", 1, 1, 1, 2, Q("80 mm")),
    Sketcher.Constraint("DistanceY", 0, 2, 0, 1, Q("10 mm")),
    Sketcher.Constraint("DistanceX", 0, 2, -1, 1, Q("11.082446 mm")),
    Sketcher.Constraint("DistanceY", 0, 2, -1, 1, Q("37.804348 mm")),
])
pad15 = body.newObject("PartDesign::Pad", "Pad014")
pad15.Profile = sketch23
pad15.Length = 5

# Sketch on XY plane
sketch24 = body.newObject("Sketcher::SketchObject", "Sketch023")
sketch24.AttachmentSupport = (doc.getObject("XY_Plane"), [""])
sketch24.MapMode = "FlatFace"
sketch24.AttachmentOffset = App.Placement(V(0, 0, 118), App.Rotation())
add_polygon(sketch24, [(-127.582446, -37.804348), (94.417554, -37.804348), (94.417554, 17.436856), (-87.582446, 62.195652), (-127.582446, 62.195652)])  # lines 0-4
sketch24.addConstraint([
    Sketcher.Constraint("Horizontal", 0),
    Sketcher.Constraint("Vertical", 1),
    Sketcher.Constraint("Horizontal", 3),
    Sketcher.Constraint("Vertical", 4),
    Sketcher.Constraint("DistanceX", 0, 1, 0, 2, Q("222 mm")),
    Sketcher.Constraint("DistanceX", 3, 2, 3, 1, Q("40 mm")),
    Sketcher.Constraint("DistanceY", 4, 2, 4, 1, Q("100 mm")),
    Sketcher.Constraint("DistanceY", 1, 1, 1, 2, Q("55.241204 mm")),
    Sketcher.Constraint("DistanceX", -1, 1, 0, 2, Q("94.417554 mm")),
    Sketcher.Constraint("DistanceY", 0, 2, -1, 1, Q("37.804348 mm")),
])
pad16 = body.newObject("PartDesign::Pad", "Pad015")
pad16.Profile = sketch24
pad16.Length = 2

# Sketch on XZ plane
sketch25 = body.newObject("Sketcher::SketchObject", "Sketch024")
sketch25.AttachmentSupport = (doc.getObject("XZ_Plane"), [""])
sketch25.MapMode = "FlatFace"
sketch25.AttachmentOffset = App.Placement(V(0, 0, 37.804348), App.Rotation())
add_polygon(sketch25, [(-100.582446, 118), (-100.582446, 108), (-20.582446, 108), (-20.582446, 118)])  # lines 0-3
sketch25.addConstraint([
    Sketcher.Constraint("Vertical", 0),
    Sketcher.Constraint("Horizontal", 1),
    Sketcher.Constraint("Vertical", 2),
    Sketcher.Constraint("Horizontal", 3),
    Sketcher.Constraint("DistanceX", 1, 1, 1, 2, Q("80 mm")),
    Sketcher.Constraint("DistanceY", 0, 2, 0, 1, Q("10 mm")),
    Sketcher.Constraint("DistanceY", -1, 1, 0, 2, Q("108 mm")),
    Sketcher.Constraint("DistanceX", 0, 2, -1, 1, Q("100.582446 mm")),
])
pad17 = body.newObject("PartDesign::Pad", "Pad016")
pad17.Profile = sketch25
pad17.Length = 10
pad17.Reversed = True

# Sketch on XY plane
sketch26 = body.newObject("Sketcher::SketchObject", "Sketch025")
sketch26.AttachmentSupport = (doc.getObject("XY_Plane"), [""])
sketch26.MapMode = "FlatFace"
sketch26.AttachmentOffset = App.Placement(V(0, 0, 118), App.Rotation())
add_polygon(sketch26, [(39.417554, -25.93367), (39.417554, -37.804348), (-10.582446, -37.804348), (-10.582446, -25.93367)])  # lines 0-3
sketch26.addConstraint([
    Sketcher.Constraint("Vertical", 0),
    Sketcher.Constraint("Horizontal", 1),
    Sketcher.Constraint("Vertical", 2),
    Sketcher.Constraint("Horizontal", 3),
    Sketcher.Constraint("DistanceX", 1, 2, 1, 1, Q("50 mm")),
    Sketcher.Constraint("DistanceY", 0, 2, 0, 1, Q("11.870678 mm")),
    Sketcher.Constraint("DistanceY", 2, 2, -1, 1, Q("25.93367 mm")),
    Sketcher.Constraint("DistanceX", -1, 1, 0, 2, Q("39.417554 mm")),
])
pad18 = body.newObject("PartDesign::Pad", "Pad017")
pad18.Profile = sketch26
pad18.Length = 10
pad18.Reversed = True

# Sketch on XY plane
sketch27 = body.newObject("Sketcher::SketchObject", "Sketch026")
sketch27.AttachmentSupport = (doc.getObject("XY_Plane"), [""])
sketch27.MapMode = "FlatFace"
sketch27.AttachmentOffset = App.Placement(V(0, 0, 108), App.Rotation())
add_polygon(sketch27, [(39.417554, -25.93367), (39.417554, -27.80367), (-10.582446, -27.80367), (-10.582446, -25.93367)])  # lines 0-3
sketch27.addConstraint([
    Sketcher.Constraint("Vertical", 0),
    Sketcher.Constraint("Horizontal", 1),
    Sketcher.Constraint("Vertical", 2),
    Sketcher.Constraint("Horizontal", 3),
    Sketcher.Constraint("DistanceX", 1, 2, 1, 1, Q("50 mm")),
    Sketcher.Constraint("DistanceY", 0, 2, 0, 1, Q("1.87 mm")),
    Sketcher.Constraint("DistanceY", 0, 2, -1, 1, Q("27.80367 mm")),
    Sketcher.Constraint("DistanceX", -1, 1, 0, 2, Q("39.417554 mm")),
])
pocket9 = body.newObject("PartDesign::Pocket", "Pocket008")
pocket9.Profile = sketch27
pocket9.Length = 10
pocket9.Reversed = True

doc.recompute()
